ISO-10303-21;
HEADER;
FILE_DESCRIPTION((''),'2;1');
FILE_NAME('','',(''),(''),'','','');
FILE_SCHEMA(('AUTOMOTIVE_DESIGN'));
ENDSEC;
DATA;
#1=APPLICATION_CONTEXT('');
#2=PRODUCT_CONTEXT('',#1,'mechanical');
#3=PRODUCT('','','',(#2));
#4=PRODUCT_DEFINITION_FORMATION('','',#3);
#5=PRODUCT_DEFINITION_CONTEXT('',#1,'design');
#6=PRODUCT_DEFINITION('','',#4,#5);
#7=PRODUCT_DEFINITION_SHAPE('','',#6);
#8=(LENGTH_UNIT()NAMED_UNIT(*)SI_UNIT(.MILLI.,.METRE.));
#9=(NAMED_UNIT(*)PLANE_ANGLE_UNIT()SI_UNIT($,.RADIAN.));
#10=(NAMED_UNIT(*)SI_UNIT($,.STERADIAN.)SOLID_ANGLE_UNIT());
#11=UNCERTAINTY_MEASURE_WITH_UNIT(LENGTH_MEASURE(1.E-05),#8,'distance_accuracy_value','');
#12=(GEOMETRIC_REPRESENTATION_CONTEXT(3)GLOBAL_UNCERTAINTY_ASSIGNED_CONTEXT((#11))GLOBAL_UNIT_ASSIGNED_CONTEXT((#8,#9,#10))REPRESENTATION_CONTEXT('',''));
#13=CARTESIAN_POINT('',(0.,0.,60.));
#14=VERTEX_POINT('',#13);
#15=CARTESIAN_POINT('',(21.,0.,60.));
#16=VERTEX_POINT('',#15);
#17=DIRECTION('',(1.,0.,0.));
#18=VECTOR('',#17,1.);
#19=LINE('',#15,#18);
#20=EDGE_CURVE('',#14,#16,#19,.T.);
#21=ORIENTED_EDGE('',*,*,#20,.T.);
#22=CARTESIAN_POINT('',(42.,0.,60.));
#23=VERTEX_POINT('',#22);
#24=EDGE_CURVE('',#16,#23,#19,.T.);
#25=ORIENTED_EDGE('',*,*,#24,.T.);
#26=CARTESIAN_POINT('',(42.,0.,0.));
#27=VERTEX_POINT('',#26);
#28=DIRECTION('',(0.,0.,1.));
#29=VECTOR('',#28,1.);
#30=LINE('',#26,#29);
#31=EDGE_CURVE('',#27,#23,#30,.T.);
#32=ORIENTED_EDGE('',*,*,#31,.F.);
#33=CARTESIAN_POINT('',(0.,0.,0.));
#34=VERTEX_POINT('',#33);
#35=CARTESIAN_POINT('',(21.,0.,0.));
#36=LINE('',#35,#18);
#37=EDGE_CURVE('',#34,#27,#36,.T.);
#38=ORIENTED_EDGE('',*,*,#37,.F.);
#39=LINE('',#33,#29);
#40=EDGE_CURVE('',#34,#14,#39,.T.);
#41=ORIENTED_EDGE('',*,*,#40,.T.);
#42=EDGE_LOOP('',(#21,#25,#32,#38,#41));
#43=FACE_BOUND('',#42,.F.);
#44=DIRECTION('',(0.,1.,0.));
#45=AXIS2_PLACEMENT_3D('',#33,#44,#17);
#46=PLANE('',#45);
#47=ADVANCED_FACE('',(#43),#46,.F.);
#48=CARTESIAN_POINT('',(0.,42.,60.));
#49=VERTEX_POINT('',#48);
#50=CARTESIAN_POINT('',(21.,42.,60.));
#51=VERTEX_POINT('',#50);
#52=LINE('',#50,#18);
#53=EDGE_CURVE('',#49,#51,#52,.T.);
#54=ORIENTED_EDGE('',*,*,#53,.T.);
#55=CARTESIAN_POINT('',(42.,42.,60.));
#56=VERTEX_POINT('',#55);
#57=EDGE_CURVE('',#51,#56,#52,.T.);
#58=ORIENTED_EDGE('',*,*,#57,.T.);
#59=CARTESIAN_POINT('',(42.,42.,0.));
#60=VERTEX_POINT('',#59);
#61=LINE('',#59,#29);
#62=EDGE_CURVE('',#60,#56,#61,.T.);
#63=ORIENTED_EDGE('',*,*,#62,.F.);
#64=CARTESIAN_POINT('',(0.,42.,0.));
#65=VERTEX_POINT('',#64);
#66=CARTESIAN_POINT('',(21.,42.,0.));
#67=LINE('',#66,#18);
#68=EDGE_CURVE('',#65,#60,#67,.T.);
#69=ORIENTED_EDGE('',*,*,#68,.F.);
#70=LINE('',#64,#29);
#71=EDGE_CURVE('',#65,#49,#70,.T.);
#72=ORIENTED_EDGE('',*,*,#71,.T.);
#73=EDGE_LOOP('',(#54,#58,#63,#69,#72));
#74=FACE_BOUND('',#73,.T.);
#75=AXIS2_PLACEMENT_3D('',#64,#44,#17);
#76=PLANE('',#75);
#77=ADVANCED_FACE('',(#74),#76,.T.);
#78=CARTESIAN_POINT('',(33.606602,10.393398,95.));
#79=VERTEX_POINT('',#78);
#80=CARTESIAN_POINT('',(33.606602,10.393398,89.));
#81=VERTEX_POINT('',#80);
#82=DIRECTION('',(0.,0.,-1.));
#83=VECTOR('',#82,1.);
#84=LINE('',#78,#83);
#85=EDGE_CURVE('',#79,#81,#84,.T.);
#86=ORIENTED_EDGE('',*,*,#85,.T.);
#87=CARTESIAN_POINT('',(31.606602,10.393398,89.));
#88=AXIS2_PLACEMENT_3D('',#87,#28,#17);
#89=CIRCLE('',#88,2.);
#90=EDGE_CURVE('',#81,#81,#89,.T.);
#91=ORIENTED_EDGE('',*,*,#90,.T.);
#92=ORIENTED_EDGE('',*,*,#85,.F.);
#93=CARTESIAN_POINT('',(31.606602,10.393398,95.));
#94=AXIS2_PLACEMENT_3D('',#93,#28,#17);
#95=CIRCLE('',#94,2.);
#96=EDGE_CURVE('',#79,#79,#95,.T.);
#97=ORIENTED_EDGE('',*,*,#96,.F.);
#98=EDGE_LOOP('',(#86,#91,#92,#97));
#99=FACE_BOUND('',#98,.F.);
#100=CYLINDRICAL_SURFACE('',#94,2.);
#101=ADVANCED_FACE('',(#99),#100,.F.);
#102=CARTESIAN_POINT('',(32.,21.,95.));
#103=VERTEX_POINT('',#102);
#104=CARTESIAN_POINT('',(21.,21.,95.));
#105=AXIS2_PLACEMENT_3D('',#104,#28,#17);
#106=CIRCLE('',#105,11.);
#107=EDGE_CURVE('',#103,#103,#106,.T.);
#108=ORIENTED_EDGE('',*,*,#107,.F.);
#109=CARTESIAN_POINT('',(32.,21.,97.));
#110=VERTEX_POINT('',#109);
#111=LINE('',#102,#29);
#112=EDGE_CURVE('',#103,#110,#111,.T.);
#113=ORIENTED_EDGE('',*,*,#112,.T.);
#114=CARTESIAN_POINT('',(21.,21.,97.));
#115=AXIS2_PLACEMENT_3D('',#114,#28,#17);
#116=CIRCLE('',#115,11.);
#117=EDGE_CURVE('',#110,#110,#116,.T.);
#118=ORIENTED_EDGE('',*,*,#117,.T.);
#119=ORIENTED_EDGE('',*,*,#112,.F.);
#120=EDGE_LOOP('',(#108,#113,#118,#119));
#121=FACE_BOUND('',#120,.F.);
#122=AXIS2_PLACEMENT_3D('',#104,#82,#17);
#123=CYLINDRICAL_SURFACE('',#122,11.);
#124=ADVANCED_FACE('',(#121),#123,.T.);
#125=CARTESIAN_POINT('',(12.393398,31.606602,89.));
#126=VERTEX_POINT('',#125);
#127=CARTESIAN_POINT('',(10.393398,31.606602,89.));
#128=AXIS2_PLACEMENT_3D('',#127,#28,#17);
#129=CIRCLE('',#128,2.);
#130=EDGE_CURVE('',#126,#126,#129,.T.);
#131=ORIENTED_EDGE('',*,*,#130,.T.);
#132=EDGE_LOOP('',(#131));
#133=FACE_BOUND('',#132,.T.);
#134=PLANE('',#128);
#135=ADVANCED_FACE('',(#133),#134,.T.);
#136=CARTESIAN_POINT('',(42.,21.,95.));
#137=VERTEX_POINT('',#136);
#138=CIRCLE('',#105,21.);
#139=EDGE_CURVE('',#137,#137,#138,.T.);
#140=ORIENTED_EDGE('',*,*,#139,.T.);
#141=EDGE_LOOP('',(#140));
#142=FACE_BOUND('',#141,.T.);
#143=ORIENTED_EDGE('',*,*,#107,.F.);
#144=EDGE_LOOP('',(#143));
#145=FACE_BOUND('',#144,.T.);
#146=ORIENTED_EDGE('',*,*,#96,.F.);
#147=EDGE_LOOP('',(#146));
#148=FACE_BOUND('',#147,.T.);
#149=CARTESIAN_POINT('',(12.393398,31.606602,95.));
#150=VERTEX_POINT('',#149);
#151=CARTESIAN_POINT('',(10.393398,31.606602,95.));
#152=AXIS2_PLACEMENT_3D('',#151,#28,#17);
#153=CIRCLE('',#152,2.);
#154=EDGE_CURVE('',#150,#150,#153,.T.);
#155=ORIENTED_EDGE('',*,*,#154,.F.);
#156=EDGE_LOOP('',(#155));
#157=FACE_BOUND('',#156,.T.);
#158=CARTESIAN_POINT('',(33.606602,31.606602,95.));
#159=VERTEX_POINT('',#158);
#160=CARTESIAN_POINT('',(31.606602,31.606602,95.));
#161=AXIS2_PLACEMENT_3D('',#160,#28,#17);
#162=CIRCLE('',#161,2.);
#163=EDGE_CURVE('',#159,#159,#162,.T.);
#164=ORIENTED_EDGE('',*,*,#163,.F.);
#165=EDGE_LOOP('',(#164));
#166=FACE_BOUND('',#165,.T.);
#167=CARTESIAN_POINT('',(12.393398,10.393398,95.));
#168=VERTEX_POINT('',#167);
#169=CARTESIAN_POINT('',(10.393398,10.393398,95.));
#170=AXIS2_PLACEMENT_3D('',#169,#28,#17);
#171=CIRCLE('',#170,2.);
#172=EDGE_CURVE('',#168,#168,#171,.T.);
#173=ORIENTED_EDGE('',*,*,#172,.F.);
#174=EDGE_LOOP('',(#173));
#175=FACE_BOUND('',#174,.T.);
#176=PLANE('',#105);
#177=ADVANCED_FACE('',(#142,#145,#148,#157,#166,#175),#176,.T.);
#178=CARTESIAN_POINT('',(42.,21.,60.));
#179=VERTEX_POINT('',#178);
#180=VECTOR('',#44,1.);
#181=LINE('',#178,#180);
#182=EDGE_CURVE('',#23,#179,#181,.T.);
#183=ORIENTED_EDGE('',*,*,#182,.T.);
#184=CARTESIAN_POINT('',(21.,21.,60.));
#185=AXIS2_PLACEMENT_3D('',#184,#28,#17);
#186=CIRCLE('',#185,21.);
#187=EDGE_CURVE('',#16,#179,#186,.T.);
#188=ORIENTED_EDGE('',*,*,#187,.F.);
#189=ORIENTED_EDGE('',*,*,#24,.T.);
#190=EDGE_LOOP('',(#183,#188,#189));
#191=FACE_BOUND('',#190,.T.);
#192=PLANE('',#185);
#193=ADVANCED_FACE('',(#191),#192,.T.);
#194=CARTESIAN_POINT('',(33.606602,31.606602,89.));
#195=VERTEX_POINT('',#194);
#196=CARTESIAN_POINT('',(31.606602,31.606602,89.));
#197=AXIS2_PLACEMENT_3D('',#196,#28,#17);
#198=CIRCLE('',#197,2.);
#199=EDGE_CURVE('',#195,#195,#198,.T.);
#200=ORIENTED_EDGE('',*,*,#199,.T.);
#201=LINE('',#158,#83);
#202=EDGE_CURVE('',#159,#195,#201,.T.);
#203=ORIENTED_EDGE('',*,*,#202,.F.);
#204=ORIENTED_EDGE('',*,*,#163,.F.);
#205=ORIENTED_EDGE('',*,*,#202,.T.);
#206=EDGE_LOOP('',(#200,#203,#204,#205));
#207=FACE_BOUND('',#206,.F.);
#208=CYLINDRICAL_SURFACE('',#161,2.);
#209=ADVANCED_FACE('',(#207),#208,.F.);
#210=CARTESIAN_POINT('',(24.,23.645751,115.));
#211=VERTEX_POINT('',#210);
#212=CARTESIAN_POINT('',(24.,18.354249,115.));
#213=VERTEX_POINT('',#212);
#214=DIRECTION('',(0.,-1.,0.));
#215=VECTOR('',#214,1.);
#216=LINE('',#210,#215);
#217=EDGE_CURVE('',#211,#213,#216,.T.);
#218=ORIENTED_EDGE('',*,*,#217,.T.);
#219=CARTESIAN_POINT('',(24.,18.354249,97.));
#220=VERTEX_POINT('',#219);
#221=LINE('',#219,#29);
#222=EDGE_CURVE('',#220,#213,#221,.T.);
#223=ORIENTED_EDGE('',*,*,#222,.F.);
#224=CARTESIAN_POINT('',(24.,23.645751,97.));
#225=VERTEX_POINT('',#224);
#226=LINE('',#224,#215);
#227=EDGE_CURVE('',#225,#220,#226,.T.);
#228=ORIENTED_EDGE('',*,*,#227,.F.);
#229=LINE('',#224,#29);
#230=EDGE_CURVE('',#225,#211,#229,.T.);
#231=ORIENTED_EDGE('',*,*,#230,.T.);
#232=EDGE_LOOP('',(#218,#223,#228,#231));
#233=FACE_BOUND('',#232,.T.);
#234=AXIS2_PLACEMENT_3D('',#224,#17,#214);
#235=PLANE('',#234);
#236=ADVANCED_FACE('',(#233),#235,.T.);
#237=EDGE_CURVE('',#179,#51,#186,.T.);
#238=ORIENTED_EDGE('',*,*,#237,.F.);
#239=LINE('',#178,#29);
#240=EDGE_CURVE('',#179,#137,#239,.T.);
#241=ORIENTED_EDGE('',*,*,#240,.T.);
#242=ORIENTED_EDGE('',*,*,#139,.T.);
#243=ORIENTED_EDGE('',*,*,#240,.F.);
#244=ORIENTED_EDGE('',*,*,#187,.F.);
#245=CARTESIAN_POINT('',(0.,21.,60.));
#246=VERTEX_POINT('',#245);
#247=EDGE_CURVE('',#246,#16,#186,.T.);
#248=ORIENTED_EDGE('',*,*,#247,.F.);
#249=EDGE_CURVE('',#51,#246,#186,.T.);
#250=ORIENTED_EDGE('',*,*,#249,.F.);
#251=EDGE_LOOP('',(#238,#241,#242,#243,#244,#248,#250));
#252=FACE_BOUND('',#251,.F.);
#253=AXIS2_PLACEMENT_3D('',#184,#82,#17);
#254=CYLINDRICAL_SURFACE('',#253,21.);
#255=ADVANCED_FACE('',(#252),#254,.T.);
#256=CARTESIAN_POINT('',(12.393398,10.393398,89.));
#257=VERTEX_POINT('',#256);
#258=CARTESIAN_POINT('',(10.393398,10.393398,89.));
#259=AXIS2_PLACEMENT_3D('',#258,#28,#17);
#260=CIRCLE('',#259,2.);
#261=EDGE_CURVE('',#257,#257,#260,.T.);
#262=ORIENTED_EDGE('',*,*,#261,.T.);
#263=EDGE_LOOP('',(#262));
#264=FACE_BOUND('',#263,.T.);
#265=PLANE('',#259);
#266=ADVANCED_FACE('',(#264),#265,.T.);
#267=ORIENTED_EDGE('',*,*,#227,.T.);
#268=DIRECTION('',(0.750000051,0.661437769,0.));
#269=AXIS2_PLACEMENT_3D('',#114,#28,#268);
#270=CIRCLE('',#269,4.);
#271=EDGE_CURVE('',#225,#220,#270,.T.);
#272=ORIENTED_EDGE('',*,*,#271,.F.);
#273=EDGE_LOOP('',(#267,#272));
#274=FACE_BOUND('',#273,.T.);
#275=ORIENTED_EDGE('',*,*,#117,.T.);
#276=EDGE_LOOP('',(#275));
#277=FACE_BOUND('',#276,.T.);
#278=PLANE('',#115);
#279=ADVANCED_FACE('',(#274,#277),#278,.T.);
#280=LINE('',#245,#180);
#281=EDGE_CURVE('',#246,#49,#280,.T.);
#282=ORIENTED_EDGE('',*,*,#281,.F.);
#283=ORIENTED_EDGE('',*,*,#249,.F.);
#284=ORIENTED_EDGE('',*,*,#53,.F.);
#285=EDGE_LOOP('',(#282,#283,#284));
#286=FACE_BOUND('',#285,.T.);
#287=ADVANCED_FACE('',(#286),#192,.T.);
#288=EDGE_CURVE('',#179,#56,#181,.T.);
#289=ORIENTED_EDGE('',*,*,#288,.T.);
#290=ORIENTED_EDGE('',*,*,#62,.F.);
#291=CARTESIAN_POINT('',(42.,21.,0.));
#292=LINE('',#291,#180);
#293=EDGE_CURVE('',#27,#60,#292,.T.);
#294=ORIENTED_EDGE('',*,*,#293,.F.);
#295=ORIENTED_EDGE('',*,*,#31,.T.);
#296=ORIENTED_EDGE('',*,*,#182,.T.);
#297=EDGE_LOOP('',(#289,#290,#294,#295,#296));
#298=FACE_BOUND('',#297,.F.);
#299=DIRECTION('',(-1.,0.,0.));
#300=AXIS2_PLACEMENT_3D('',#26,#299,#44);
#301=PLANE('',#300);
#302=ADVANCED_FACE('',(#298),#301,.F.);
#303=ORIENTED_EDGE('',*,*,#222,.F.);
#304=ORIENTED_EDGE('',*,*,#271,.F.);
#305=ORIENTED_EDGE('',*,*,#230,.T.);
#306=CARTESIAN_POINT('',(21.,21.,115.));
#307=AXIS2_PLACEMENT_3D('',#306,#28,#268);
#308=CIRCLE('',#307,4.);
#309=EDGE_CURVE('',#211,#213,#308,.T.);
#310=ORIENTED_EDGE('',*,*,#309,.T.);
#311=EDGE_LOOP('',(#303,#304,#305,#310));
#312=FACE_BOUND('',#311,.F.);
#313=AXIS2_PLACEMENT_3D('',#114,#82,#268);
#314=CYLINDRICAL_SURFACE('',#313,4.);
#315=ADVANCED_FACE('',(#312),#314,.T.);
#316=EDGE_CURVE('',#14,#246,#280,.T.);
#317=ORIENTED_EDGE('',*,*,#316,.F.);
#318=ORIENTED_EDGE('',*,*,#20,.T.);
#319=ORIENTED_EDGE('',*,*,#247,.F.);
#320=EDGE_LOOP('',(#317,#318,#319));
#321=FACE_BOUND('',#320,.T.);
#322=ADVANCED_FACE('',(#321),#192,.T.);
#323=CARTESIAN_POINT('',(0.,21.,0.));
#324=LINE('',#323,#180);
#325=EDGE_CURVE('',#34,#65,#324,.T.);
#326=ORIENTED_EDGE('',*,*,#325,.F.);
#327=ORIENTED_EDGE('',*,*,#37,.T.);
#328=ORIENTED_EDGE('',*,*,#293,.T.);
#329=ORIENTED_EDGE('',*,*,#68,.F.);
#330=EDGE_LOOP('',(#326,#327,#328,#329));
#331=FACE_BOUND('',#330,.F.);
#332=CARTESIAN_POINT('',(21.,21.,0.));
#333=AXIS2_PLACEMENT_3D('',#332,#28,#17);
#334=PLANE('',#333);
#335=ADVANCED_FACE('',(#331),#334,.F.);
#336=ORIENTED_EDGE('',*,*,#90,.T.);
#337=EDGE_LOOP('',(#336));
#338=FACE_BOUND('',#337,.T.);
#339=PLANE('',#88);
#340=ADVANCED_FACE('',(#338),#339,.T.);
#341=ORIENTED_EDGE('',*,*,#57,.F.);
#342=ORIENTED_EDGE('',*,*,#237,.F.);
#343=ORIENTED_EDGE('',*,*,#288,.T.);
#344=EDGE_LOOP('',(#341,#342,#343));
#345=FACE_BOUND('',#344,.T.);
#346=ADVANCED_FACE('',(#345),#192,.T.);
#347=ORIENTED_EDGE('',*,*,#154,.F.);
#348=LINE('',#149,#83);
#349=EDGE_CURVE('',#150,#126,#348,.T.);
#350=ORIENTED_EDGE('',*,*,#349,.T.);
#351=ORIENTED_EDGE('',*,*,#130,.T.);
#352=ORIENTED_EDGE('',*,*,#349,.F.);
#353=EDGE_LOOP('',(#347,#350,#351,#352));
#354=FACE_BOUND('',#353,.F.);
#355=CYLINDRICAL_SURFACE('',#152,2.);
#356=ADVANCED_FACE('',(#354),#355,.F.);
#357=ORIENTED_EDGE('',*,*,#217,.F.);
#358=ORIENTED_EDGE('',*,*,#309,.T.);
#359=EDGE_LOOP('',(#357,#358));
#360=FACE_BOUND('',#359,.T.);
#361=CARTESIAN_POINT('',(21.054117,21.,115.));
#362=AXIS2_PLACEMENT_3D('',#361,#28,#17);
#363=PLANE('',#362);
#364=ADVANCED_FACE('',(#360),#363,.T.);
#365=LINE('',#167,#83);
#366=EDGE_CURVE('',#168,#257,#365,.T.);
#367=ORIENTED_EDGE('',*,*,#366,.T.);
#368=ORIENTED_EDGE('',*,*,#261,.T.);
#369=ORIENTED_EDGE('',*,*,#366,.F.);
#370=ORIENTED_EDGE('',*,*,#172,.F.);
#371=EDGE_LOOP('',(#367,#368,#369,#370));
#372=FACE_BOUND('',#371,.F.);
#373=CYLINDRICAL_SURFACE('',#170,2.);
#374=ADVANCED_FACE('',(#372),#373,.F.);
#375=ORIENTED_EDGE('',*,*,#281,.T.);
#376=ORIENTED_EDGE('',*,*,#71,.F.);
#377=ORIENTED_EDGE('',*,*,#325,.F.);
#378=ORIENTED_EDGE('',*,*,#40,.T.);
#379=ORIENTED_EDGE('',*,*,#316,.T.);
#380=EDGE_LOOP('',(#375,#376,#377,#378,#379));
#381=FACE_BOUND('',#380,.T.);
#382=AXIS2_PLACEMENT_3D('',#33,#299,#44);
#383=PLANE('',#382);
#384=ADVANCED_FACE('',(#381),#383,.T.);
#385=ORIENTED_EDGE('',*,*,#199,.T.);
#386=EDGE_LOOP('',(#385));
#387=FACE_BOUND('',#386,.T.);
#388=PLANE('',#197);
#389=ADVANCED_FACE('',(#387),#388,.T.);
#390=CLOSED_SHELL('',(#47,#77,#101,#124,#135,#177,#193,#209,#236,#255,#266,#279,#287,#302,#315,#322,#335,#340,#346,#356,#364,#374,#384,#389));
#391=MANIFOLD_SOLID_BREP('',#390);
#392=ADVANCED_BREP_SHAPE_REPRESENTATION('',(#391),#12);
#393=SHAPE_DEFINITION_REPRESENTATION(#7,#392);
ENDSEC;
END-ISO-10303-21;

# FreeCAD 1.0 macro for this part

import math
import FreeCAD as App
import Part
import Sketcher

V = App.Vector

doc = App.newDocument("Part")
body = doc.addObject("PartDesign::Body", "Body")

sketch1 = body.newObject("Sketcher::SketchObject", "Sketch")
sketch1.AttachmentSupport = (doc.getObject("XY_Plane"), [""])
sketch1.MapMode = "FlatFace"
sketch1.addGeometry([
    Part.LineSegment(V(0, 42, 0), V(0, 0, 0)),
    Part.LineSegment(V(0, 0, 0), V(42, 0, 0)),
    Part.LineSegment(V(42, 0, 0), V(42, 42, 0)),
    Part.LineSegment(V(42, 42, 0), V(0, 42, 0)),
], False)
sketch1.addConstraint([
    Sketcher.Constraint("Coincident", 0, 2, 1, 1),
    Sketcher.Constraint("Coincident", 1, 2, 2, 1),
    Sketcher.Constraint("Coincident", 2, 2, 3, 1),
    Sketcher.Constraint("Coincident", 3, 2, 0, 1),
    Sketcher.Constraint("Vertical", 0),
    Sketcher.Constraint("Horizontal", 1),
    Sketcher.Constraint("Vertical", 2),
    Sketcher.Constraint("Horizontal", 3),
    Sketcher.Constraint("Coincident", 0, 2, -1, 1),
    Sketcher.Constraint("Equal", 3, 0),
    Sketcher.Constraint("DistanceX", 1, 1, 1, 2, 42.0),
])
pad1 = body.newObject("PartDesign::Pad", "Pad")
pad1.Profile = sketch1
pad1.Length = 60

sketch2 = body.newObject("Sketcher::SketchObject", "Sketch001")
sketch2.AttachmentSupport = (doc.getObject("XY_Plane"), [""])
sketch2.MapMode = "FlatFace"
sketch2.AttachmentOffset = App.Placement(V(0, 0, 60), App.Rotation())
sketch2.addGeometry(Part.Circle(V(21, 21, 0), V(0, 0, 1), 21), False)
sketch2.addConstraint([
    Sketcher.Constraint("Diameter", 0, 42.0),
    Sketcher.Constraint("DistanceX", -1, 1, 0, 3, 21.0),
    Sketcher.Constraint("DistanceY", -1, 1, 0, 3, 21.0),
])
pad2 = body.newObject("PartDesign::Pad", "Pad001")
pad2.Profile = sketch2
pad2.Length = 35

sketch3 = body.newObject("Sketcher::SketchObject", "Sketch002")
sketch3.AttachmentSupport = (doc.getObject("XY_Plane"), [""])
sketch3.MapMode = "FlatFace"
sketch3.AttachmentOffset = App.Placement(V(0, 0, 95), App.Rotation())
sketch3.addGeometry(Part.Circle(V(21, 21, 0), V(0, 0, 1), 11), False)
sketch3.addConstraint([
    Sketcher.Constraint("Diameter", 0, 22.0),
    Sketcher.Constraint("DistanceX", -1, 1, 0, 3, 21.0),
    Sketcher.Constraint("DistanceY", -1, 1, 0, 3, 21.0),
])
pad3 = body.newObject("PartDesign::Pad", "Pad002")
pad3.Profile = sketch3
pad3.Length = 2

sketch4 = body.newObject("Sketcher::SketchObject", "Sketch003")
sketch4.AttachmentSupport = (doc.getObject("XY_Plane"), [""])
sketch4.MapMode = "FlatFace"
sketch4.AttachmentOffset = App.Placement(V(0, 0, 97), App.Rotation())
sketch4.addGeometry([
    Part.ArcOfCircle(Part.Circle(V(21, 21, 0), V(0, 0, 1), 4), math.radians(41.409618), math.radians(318.590382)),
    Part.LineSegment(V(24, 18.354249, 0), V(24, 23.645751, 0)),
], False)
sketch4.addConstraint([
    Sketcher.Constraint("Coincident", 0, 1, 1, 2),
    Sketcher.Constraint("Coincident", 1, 1, 0, 2),
    Sketcher.Constraint("Vertical", 1),
    Sketcher.Constraint("Radius", 0, 4.0),
    Sketcher.Constraint("DistanceX", -1, 1, 0, 3, 21.0),
    Sketcher.Constraint("DistanceY", -1, 1, 0, 3, 21.0),
    Sketcher.Constraint("DistanceX", -1, 1, 0, 1, 24.0),
])
pad4 = body.newObject("PartDesign::Pad", "Pad003")
pad4.Profile = sketch4
pad4.Length = 18

sketch5 = body.newObject("Sketcher::SketchObject", "Sketch004")
sketch5.AttachmentSupport = (doc.getObject("XY_Plane"), [""])
sketch5.MapMode = "FlatFace"
sketch5.AttachmentOffset = App.Placement(V(0, 0, 95), App.Rotation())
sketch5.addGeometry([
    Part.Circle(V(10.393398, 10.393398, 0), V(0, 0, 1), 2),
    Part.Circle(V(31.606602, 10.393398, 0), V(0, 0, 1), 2),
    Part.Circle(V(31.606602, 31.606602, 0), V(0, 0, 1), 2),
    Part.Circle(V(10.393398, 31.606602, 0), V(0, 0, 1), 2),
], False)
sketch5.addConstraint([
    Sketcher.Constraint("Equal", 0, 1),
    Sketcher.Constraint("Equal", 1, 2),
    Sketcher.Constraint("Equal", 2, 3),
    Sketcher.Constraint("Horizontal", 0, 3, 1, 3),
    Sketcher.Constraint("Horizontal", 2, 3, 3, 3),
    Sketcher.Constraint("Vertical", 1, 3, 2, 3),
    Sketcher.Constraint("Vertical", 0, 3, 3, 3),
    Sketcher.Constraint("Diameter", 0, 4.0),
    Sketcher.Constraint("DistanceX", -1, 1, 1, 3, 31.606602),
    Sketcher.Constraint("DistanceY", -1, 1, 2, 3, 31.606602),
    Sketcher.Constraint("DistanceX", -1, 1, 0, 3, 10.393398),
    Sketcher.Constraint("DistanceY", -1, 1, 0, 3, 10.393398),
])
pocket1 = body.newObject("PartDesign::Pocket", "Pocket")
pocket1.Profile = sketch5
pocket1.Length = 6

doc.recompute()
